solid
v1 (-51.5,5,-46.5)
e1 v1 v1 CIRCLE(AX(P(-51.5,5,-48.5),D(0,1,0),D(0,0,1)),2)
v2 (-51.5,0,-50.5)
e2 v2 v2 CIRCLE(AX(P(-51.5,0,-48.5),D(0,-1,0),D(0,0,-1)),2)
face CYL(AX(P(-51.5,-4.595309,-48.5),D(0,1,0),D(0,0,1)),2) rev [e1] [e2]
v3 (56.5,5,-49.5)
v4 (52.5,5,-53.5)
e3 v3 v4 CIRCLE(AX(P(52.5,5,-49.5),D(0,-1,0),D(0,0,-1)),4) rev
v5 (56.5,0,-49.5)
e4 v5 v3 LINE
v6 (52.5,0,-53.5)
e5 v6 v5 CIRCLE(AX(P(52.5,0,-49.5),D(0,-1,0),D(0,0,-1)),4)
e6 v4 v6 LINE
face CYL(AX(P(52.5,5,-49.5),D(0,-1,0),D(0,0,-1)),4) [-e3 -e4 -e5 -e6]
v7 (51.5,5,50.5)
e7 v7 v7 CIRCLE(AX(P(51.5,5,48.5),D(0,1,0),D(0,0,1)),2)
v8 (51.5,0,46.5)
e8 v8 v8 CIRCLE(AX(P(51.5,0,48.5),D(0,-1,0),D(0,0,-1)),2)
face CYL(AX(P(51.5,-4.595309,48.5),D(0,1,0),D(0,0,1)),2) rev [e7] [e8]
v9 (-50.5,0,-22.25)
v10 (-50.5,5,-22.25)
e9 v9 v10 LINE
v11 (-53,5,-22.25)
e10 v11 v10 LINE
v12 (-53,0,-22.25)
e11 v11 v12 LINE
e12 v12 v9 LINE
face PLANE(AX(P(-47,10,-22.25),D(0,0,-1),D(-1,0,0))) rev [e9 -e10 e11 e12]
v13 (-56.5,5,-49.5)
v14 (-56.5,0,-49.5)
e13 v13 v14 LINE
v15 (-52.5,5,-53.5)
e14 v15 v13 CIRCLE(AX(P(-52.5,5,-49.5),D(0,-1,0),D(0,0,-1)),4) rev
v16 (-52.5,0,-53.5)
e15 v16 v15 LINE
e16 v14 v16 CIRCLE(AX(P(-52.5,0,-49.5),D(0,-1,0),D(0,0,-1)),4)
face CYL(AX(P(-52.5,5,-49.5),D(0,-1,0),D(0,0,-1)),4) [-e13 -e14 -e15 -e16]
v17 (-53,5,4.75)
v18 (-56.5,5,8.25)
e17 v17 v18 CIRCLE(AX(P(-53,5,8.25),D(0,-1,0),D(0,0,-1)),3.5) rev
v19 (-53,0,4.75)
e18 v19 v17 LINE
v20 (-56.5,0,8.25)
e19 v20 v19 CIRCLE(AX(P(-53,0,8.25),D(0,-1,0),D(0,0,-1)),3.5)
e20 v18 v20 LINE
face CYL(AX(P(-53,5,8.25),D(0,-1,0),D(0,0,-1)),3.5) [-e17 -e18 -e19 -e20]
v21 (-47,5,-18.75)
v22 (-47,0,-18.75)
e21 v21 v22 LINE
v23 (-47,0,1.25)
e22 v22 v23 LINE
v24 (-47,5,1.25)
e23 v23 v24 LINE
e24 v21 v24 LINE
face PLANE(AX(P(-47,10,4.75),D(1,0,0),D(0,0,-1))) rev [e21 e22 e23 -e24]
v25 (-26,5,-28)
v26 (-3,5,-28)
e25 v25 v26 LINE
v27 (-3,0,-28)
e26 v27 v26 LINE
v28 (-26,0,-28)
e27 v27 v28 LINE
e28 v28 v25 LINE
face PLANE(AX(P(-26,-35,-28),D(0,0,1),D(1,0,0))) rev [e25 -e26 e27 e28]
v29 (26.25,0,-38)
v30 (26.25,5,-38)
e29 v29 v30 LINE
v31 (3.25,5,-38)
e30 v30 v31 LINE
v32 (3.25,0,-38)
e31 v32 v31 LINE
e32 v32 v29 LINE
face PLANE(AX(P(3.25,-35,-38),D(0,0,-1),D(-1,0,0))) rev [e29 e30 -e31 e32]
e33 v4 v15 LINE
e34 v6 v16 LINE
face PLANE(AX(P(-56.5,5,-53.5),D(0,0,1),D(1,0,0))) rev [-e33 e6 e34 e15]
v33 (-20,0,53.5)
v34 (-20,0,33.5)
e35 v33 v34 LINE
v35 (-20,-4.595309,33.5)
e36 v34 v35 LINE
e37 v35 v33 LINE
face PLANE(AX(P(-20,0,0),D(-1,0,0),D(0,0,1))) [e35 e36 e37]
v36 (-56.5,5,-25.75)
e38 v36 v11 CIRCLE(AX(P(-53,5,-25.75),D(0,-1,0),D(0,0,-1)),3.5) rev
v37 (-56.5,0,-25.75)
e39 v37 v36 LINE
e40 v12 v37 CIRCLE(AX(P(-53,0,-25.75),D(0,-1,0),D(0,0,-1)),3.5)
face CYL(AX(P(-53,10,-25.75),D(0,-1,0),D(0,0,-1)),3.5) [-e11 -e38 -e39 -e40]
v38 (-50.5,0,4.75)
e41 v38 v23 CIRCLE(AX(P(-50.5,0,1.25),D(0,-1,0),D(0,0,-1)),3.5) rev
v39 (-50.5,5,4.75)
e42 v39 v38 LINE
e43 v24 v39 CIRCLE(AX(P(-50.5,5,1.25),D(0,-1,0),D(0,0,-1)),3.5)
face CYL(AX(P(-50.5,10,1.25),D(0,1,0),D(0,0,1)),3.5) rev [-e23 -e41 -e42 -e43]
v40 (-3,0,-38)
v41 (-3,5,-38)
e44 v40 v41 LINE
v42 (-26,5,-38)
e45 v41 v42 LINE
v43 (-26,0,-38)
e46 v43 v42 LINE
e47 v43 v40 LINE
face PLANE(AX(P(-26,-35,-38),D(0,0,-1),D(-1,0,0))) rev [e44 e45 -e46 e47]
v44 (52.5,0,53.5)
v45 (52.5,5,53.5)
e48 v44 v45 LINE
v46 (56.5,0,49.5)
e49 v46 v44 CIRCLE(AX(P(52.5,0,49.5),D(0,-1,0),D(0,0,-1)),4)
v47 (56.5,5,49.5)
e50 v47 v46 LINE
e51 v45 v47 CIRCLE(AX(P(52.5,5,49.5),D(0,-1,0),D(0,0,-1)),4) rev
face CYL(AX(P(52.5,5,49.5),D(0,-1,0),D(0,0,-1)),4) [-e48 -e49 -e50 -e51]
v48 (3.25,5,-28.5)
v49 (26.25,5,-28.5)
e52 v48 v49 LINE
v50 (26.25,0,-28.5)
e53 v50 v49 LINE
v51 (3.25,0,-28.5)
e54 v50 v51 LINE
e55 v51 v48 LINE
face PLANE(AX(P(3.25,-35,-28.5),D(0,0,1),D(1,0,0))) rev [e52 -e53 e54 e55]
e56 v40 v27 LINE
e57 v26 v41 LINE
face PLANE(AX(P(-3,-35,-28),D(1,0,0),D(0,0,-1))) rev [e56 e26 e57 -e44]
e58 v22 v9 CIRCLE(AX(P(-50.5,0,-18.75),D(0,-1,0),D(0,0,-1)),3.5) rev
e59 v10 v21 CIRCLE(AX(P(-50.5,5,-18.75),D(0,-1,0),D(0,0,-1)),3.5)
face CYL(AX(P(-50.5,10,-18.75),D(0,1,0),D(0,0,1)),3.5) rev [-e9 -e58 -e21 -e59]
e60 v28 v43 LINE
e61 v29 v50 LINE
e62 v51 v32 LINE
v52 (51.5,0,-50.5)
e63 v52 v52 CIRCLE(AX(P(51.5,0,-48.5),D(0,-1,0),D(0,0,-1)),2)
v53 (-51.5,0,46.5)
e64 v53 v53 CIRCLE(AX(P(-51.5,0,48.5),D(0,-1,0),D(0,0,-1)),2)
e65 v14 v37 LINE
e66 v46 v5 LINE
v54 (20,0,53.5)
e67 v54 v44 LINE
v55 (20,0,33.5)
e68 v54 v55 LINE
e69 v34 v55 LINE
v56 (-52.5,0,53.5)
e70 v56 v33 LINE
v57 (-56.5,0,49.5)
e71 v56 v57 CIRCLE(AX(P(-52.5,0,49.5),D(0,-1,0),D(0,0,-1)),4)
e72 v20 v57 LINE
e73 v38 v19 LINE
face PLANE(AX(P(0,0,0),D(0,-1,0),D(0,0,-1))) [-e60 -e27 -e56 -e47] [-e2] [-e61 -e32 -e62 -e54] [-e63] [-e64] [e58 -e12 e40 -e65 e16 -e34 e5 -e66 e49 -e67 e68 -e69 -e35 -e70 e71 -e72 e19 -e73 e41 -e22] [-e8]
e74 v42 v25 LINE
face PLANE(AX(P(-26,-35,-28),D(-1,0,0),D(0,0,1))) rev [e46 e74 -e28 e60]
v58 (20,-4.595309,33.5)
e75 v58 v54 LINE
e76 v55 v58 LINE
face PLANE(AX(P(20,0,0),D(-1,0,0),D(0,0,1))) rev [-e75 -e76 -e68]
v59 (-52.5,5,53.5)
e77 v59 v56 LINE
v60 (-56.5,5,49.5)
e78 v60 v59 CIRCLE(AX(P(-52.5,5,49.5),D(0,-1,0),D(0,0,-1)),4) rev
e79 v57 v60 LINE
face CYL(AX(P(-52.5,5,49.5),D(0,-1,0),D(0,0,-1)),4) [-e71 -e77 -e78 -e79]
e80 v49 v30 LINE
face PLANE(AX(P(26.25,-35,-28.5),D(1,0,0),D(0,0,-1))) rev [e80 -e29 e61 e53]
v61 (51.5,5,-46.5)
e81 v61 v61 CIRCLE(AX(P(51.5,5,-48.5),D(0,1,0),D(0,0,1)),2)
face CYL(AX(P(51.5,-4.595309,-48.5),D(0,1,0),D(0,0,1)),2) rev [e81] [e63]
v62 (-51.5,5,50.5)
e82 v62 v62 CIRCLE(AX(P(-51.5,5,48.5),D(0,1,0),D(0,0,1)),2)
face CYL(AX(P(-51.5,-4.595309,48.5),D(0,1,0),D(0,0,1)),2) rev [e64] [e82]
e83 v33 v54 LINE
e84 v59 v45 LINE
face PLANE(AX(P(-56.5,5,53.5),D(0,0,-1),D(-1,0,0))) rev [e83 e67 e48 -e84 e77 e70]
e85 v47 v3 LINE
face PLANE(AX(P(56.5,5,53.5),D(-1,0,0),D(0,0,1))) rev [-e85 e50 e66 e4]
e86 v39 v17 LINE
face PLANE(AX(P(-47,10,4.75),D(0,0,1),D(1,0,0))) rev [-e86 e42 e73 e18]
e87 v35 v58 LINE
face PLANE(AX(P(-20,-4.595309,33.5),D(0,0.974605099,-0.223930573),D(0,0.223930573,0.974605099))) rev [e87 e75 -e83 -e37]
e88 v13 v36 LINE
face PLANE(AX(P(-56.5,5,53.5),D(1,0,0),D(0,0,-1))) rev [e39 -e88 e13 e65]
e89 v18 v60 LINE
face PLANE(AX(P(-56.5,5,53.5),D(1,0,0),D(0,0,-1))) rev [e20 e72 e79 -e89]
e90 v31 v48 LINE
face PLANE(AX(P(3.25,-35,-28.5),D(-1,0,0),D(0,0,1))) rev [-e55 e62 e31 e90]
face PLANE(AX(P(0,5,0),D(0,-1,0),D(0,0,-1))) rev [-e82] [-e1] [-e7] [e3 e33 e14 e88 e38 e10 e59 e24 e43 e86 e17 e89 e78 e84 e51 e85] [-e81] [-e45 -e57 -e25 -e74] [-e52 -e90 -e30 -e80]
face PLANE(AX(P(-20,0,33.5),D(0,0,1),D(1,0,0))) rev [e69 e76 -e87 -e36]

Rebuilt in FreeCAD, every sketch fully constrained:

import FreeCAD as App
import Part
import Sketcher
Q = App.Units.Quantity


def edges_at(feature, points):
    """Names of the edges that pass closest to the given points."""
    edges = feature.Shape.Edges
    near = lambda p: min(range(len(edges)), key=lambda i: edges[i].distToShape(Part.Vertex(*p))[0])
    return sorted({f"Edge{near(p) + 1}" for p in points})

doc = App.newDocument("Part")
body = doc.addObject("PartDesign::Body", "Body")

sketch1 = body.newObject("Sketcher::SketchObject", "Sketch")
sketch1.AttachmentSupport = (doc.getObject("XZ_Plane"), [""])
sketch1.MapMode = "FlatFace"
sketch1.addGeometry([
    Part.LineSegment(App.Vector(-56.5, -53.5, 0), App.Vector(-56.5, 53.5, 0)),
    Part.LineSegment(App.Vector(-56.5, 53.5, 0), App.Vector(56.5, 53.5, 0)),
    Part.LineSegment(App.Vector(56.5, 53.5, 0), App.Vector(56.5, -53.5, 0)),
    Part.LineSegment(App.Vector(56.5, -53.5, 0), App.Vector(-56.5, -53.5, 0)),
], False)
sketch1.addConstraint([
    Sketcher.Constraint("Coincident", 0, 2, 1, 1),
    Sketcher.Constraint("Coincident", 1, 2, 2, 1),
    Sketcher.Constraint("Coincident", 2, 2, 3, 1),
    Sketcher.Constraint("Coincident", 3, 2, 0, 1),
    Sketcher.Constraint("Vertical", 0),
    Sketcher.Constraint("Horizontal", 1),
    Sketcher.Constraint("Vertical", 2),
    Sketcher.Constraint("Horizontal", 3),
    Sketcher.Constraint("Symmetric", 0, 2, 2, 2, -1, 1),
    Sketcher.Constraint("DistanceX", 1, 1, 1, 2, Q("113 mm")),
    Sketcher.Constraint("DistanceY", 0, 1, 0, 2, Q("107 mm")),
])
pad1 = body.newObject("PartDesign::Pad", "Pad")
pad1.Profile = sketch1
pad1.Length = 5
pad1.Reversed = True

sketch2 = body.newObject("Sketcher::SketchObject", "Sketch001")
sketch2.AttachmentSupport = (doc.getObject("YZ_Plane"), [""])
sketch2.MapMode = "FlatFace"
sketch2.addGeometry([
    Part.LineSegment(App.Vector(0, 33.5, 0), App.Vector(-4.595309, 33.5, 0)),
    Part.LineSegment(App.Vector(-4.595309, 33.5, 0), App.Vector(0, 53.5, 0)),
    Part.LineSegment(App.Vector(0, 53.5, 0), App.Vector(0, 33.5, 0)),
], False)
sketch2.addConstraint([
    Sketcher.Constraint("Coincident", 0, 2, 1, 1),
    Sketcher.Constraint("Coincident", 1, 2, 2, 1),
    Sketcher.Constraint("Coincident", 2, 2, 0, 1),
    Sketcher.Constraint("Horizontal", 0),
    Sketcher.Constraint("Vertical", 2),
    Sketcher.Constraint("PointOnObject", 1, 2, -2),
    Sketcher.Constraint("DistanceY", 2, 2, 2, 1, Q("20 mm")),
    Sketcher.Constraint("DistanceY", -1, 1, 0, 2, Q("33.5 mm")),
    Sketcher.Constraint("Angle", 1, Q("77.06 deg")),
])
pad2 = body.newObject("PartDesign::Pad", "Pad001")
pad2.Profile = sketch2
pad2.Length = 40
pad2.Midplane = True

sketch3 = body.newObject("Sketcher::SketchObject", "Sketch002")
sketch3.AttachmentSupport = (doc.getObject("XZ_Plane"), [""])
sketch3.MapMode = "FlatFace"
sketch3.AttachmentOffset = App.Placement(App.Vector(0, 0, -5), App.Rotation())
sketch3.addGeometry([
    Part.LineSegment(App.Vector(-26, -38, 0), App.Vector(-26, -28, 0)),
    Part.LineSegment(App.Vector(-26, -28, 0), App.Vector(-3, -28, 0)),
    Part.LineSegment(App.Vector(-3, -28, 0), App.Vector(-3, -38, 0)),
    Part.LineSegment(App.Vector(-3, -38, 0), App.Vector(-26, -38, 0)),
    Part.LineSegment(App.Vector(3.25, -38, 0), App.Vector(3.25, -28.5, 0)),
    Part.LineSegment(App.Vector(3.25, -28.5, 0), App.Vector(26.25, -28.5, 0)),
    Part.LineSegment(App.Vector(26.25, -28.5, 0), App.Vector(26.25, -38, 0)),
    Part.LineSegment(App.Vector(26.25, -38, 0), App.Vector(3.25, -38, 0)),
], False)
sketch3.addConstraint([
    Sketcher.Constraint("Coincident", 0, 2, 1, 1),
    Sketcher.Constraint("Coincident", 1, 2, 2, 1),
    Sketcher.Constraint("Coincident", 2, 2, 3, 1),
    Sketcher.Constraint("Coincident", 3, 2, 0, 1),
    Sketcher.Constraint("Coincident", 4, 2, 5, 1),
    Sketcher.Constraint("Coincident", 5, 2, 6, 1),
    Sketcher.Constraint("Coincident", 6, 2, 7, 1),
    Sketcher.Constraint("Coincident", 7, 2, 4, 1),
    Sketcher.Constraint("Vertical", 0),
    Sketcher.Constraint("Horizontal", 1),
    Sketcher.Constraint("Vertical", 2),
    Sketcher.Constraint("Horizontal", 3),
    Sketcher.Constraint("Vertical", 4),
    Sketcher.Constraint("Horizontal", 5),
    Sketcher.Constraint("Vertical", 6),
    Sketcher.Constraint("Horizontal", 7),
    Sketcher.Constraint("Horizontal", 3, 2, 6, 2),
    Sketcher.Constraint("Equal", 3, 5),
    Sketcher.Constraint("DistanceX", 1, 1, 1, 2, Q("23 mm")),
    Sketcher.Constraint("DistanceY", 0, 1, 0, 2, Q("10 mm")),
    Sketcher.Constraint("DistanceY", 4, 1, 4, 2, Q("9.5 mm")),
    Sketcher.Constraint("DistanceX", 0, 2, -1, 1, Q("26 mm")),
    Sketcher.Constraint("DistanceY", 0, 2, -1, 1, Q("28 mm")),
    Sketcher.Constraint("DistanceX", -1, 1, 4, 2, Q("3.25 mm")),
])
pocket1 = body.newObject("PartDesign::Pocket", "Pocket")
pocket1.Profile = sketch3
pocket1.Length = 40
pocket1.Reversed = True

sketch4 = body.newObject("Sketcher::SketchObject", "Sketch003")
sketch4.AttachmentSupport = (doc.getObject("XZ_Plane"), [""])
sketch4.MapMode = "FlatFace"
sketch4.AttachmentOffset = App.Placement(App.Vector(0, 0, -5), App.Rotation())
sketch4.addGeometry([
    Part.Circle(App.Vector(-51.5, -48.5, 0), App.Vector(0, 0, 1), 2),
    Part.Circle(App.Vector(-51.5, 48.5, 0), App.Vector(0, 0, 1), 2),
    Part.Circle(App.Vector(51.5, 48.5, 0), App.Vector(0, 0, 1), 2),
    Part.Circle(App.Vector(51.5, -48.5, 0), App.Vector(0, 0, 1), 2),
], False)
sketch4.addConstraint([
    Sketcher.Constraint("Equal", 0, 1),
    Sketcher.Constraint("Equal", 1, 2),
    Sketcher.Constraint("Equal", 2, 3),
    Sketcher.Constraint("Symmetric", 0, 3, 2, 3, -1, 1),
    Sketcher.Constraint("Symmetric", 1, 3, 3, 3, -1, 1),
    Sketcher.Constraint("Symmetric", 1, 3, 2, 3, -2),
    Sketcher.Constraint("Diameter", 0, Q("4 mm")),
    Sketcher.Constraint("DistanceY", 0, 3, 1, 3, Q("97 mm")),
    Sketcher.Constraint("DistanceX", 1, 3, 2, 3, Q("103 mm")),
])
pocket2 = body.newObject("PartDesign::Pocket", "Pocket001")
pocket2.Profile = sketch4
pocket2.Type = "ThroughAll"
pocket2.Reversed = True
doc.recompute()

fillet = body.newObject("PartDesign::Fillet", "Fillet")
fillet.Base = (pocket2, edges_at(pocket2, [
    (56.5, 2.5, 53.5),
    (-56.5, 2.5, 53.5),
    (-56.5, 2.5, -53.5),
    (56.5, 2.5, -53.5),
]))
fillet.Radius = 4

sketch5 = body.newObject("Sketcher::SketchObject", "Sketch004")
sketch5.AttachmentSupport = (doc.getObject("XZ_Plane"), [""])
sketch5.MapMode = "FlatFace"
sketch5.addGeometry([
    Part.LineSegment(App.Vector(-56.5, 4.75, 0), App.Vector(-56.5, -22.25, 0)),
    Part.LineSegment(App.Vector(-56.5, -22.25, 0), App.Vector(-47, -22.25, 0)),
    Part.LineSegment(App.Vector(-47, -22.25, 0), App.Vector(-47, 4.75, 0)),
    Part.LineSegment(App.Vector(-47, 4.75, 0), App.Vector(-56.5, 4.75, 0)),
], False)
sketch5.addConstraint([
    Sketcher.Constraint("Coincident", 0, 2, 1, 1),
    Sketcher.Constraint("Coincident", 1, 2, 2, 1),
    Sketcher.Constraint("Coincident", 2, 2, 3, 1),
    Sketcher.Constraint("Coincident", 3, 2, 0, 1),
    Sketcher.Constraint("Vertical", 0),
    Sketcher.Constraint("Horizontal", 1),
    Sketcher.Constraint("Vertical", 2),
    Sketcher.Constraint("Horizontal", 3),
    Sketcher.Constraint("DistanceY", 0, 2, 0, 1, Q("27 mm")),
    Sketcher.Constraint("DistanceX", 1, 1, 1, 2, Q("9.5 mm")),
    Sketcher.Constraint("DistanceX", 1, 2, -1, 1, Q("47 mm")),
    Sketcher.Constraint("DistanceY", 0, 2, -1, 1, Q("22.25 mm")),
])
pocket3 = body.newObject("PartDesign::Pocket", "Pocket002")
pocket3.Profile = sketch5
pocket3.Length = 10
doc.recompute()

fillet2 = body.newObject("PartDesign::Fillet", "Fillet001")
fillet2.Base = (pocket3, edges_at(pocket3, [
    (-56.5, 2.5, -22.25),
    (-56.5, 2.5, 4.75),
    (-47, 2.5, 4.75),
    (-47, 2.5, -22.25),
]))
fillet2.Radius = 3.5

doc.recompute()
